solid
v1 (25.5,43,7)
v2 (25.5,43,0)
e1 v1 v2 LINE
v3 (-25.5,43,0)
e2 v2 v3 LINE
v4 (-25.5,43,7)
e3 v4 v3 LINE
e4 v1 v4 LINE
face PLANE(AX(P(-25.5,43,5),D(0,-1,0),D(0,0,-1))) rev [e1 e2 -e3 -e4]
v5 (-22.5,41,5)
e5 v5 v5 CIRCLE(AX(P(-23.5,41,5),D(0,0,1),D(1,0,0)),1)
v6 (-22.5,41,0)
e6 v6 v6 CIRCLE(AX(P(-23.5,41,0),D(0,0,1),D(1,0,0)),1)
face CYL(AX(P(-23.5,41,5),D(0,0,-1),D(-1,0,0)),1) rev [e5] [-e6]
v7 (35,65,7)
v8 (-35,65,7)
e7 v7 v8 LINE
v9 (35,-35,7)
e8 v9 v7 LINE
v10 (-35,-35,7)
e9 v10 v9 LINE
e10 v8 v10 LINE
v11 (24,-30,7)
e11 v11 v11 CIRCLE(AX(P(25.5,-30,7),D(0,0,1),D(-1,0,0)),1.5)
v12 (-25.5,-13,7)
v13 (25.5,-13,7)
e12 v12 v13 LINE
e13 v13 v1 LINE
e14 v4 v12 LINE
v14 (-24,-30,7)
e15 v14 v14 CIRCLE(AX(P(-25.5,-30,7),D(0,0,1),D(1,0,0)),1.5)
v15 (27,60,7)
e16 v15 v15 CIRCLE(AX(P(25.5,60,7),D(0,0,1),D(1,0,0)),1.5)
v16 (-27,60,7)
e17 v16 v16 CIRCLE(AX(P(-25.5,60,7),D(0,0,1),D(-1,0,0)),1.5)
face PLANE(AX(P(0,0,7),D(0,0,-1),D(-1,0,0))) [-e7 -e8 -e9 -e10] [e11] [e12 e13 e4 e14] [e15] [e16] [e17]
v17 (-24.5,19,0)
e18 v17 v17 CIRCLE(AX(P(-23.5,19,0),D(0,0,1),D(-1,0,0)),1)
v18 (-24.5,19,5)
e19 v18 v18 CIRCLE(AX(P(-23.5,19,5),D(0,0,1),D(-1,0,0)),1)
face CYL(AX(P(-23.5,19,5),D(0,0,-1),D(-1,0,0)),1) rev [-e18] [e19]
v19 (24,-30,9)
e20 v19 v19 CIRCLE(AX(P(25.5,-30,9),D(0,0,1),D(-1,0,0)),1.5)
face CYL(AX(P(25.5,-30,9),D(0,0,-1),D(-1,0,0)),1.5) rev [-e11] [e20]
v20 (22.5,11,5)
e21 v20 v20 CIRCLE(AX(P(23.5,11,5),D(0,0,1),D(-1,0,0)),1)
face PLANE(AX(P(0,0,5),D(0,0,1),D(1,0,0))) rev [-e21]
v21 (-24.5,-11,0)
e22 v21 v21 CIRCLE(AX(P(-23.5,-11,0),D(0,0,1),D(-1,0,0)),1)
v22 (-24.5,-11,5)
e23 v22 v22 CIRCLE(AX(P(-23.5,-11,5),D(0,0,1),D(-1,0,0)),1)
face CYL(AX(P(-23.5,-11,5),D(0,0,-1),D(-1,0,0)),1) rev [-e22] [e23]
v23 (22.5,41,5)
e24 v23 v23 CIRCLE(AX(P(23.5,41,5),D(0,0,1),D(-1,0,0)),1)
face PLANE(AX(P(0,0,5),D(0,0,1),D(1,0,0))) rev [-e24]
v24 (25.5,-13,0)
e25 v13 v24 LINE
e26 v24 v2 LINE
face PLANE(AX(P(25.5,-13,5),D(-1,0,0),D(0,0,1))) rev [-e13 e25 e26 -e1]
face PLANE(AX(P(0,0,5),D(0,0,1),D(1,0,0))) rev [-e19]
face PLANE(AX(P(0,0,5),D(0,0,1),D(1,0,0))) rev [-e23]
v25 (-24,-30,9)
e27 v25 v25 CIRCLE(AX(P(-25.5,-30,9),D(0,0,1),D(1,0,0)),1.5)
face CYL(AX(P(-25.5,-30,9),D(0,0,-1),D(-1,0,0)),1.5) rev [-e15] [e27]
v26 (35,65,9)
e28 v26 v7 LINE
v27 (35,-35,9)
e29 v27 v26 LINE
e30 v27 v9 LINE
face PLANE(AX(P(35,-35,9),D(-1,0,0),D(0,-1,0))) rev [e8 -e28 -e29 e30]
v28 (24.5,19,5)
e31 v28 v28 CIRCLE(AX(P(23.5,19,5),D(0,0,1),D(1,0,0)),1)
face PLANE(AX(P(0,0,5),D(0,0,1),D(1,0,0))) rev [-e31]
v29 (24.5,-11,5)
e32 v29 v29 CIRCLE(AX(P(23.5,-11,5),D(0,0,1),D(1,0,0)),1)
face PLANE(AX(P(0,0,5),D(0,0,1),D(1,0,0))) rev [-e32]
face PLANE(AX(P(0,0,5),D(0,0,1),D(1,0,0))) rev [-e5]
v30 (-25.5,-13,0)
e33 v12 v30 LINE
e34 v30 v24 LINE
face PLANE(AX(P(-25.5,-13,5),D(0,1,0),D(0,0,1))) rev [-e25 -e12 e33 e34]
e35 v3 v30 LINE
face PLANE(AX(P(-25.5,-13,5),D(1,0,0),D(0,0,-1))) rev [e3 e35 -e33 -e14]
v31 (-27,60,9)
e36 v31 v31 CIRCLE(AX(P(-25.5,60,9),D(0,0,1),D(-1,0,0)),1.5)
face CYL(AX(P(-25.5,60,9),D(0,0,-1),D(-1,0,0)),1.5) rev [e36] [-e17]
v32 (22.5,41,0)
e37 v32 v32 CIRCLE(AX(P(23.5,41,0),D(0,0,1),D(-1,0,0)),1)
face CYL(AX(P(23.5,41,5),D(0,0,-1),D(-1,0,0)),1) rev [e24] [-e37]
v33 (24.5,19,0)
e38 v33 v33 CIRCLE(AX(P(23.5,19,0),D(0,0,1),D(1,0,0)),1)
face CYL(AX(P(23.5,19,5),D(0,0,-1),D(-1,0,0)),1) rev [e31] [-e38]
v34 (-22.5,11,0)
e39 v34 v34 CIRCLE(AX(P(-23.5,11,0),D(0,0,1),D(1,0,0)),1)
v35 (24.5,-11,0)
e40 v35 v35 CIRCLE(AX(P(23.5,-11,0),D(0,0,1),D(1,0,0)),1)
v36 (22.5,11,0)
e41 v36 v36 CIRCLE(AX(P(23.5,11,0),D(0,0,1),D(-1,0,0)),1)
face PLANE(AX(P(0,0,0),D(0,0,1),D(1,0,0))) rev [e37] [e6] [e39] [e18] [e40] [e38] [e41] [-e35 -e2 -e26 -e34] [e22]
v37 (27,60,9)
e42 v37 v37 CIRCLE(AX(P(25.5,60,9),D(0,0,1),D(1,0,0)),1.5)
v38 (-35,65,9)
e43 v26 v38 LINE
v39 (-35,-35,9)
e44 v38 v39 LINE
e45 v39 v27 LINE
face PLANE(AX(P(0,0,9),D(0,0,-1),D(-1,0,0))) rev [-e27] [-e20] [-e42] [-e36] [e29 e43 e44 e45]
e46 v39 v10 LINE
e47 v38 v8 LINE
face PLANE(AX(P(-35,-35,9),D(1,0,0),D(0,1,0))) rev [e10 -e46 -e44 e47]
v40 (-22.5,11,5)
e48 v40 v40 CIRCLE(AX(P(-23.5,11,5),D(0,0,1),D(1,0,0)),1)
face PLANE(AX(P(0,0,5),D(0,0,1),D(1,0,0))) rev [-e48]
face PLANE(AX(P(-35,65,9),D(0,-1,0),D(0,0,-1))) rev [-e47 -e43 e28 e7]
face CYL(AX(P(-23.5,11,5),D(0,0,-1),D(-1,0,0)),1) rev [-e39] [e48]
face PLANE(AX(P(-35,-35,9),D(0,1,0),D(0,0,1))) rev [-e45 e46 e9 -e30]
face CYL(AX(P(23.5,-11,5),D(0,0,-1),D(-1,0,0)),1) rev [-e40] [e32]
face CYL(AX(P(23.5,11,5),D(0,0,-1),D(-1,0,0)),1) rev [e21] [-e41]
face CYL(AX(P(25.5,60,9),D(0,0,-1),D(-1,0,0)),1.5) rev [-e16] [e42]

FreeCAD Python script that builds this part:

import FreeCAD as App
import Part
import Sketcher

V = App.Vector
Q = App.Units.Quantity


def add_polygon(sketch, points):
    """Adds a closed chain of lines whose ends are joined by coincident constraints."""
    first, n = sketch.GeometryCount, len(points)
    for a, b in zip(points, points[1:] + points[:1]):
        sketch.addGeometry(Part.LineSegment(App.Vector(*a, 0), App.Vector(*b, 0)), False)
    for i in range(n):
        sketch.addConstraint(Sketcher.Constraint("Coincident", first + i, 2, first + (i + 1) % n, 1))

doc = App.newDocument("Part")
body = doc.addObject("PartDesign::Body", "Body")

# Sketch on XY plane
sketch1 = doc.addObject("Sketcher::SketchObject", "Sketch")
body.addObject(sketch1)
sketch1.AttachmentSupport = (doc.XY_Plane, [""])
sketch1.MapMode = "FlatFace"
add_polygon(sketch1, [(-25.5, -13), (25.5, -13), (25.5, 43), (-25.5, 43)])  # lines 0-3
sketch1.addGeometry(Part.Circle(V(-23.5, -11, 0), V(0, 0, 1), 1), False)  # 4
sketch1.addGeometry(Part.Circle(V(-23.5, 11, 0), V(0, 0, 1), 1), False)  # 5
sketch1.addGeometry(Part.Circle(V(23.5, -11, 0), V(0, 0, 1), 1), False)  # 6
sketch1.addGeometry(Part.Circle(V(23.5, 11, 0), V(0, 0, 1), 1), False)  # 7
sketch1.addGeometry(Part.Circle(V(-23.5, 19, 0), V(0, 0, 1), 1), False)  # 8
sketch1.addGeometry(Part.Circle(V(-23.5, 41, 0), V(0, 0, 1), 1), False)  # 9
sketch1.addGeometry(Part.Circle(V(23.5, 19, 0), V(0, 0, 1), 1), False)  # 10
sketch1.addGeometry(Part.Circle(V(23.5, 41, 0), V(0, 0, 1), 1), False)  # 11
sketch1.addConstraint(Sketcher.Constraint("Horizontal", 0))
sketch1.addConstraint(Sketcher.Constraint("Vertical", 1))
sketch1.addConstraint(Sketcher.Constraint("Horizontal", 2))
sketch1.addConstraint(Sketcher.Constraint("Vertical", 3))
sketch1.addConstraint(Sketcher.Constraint("Equal", 4, 5))
sketch1.addConstraint(Sketcher.Constraint("Equal", 5, 6))
sketch1.addConstraint(Sketcher.Constraint("Equal", 6, 7))
sketch1.addConstraint(Sketcher.Constraint("Equal", 7, 8))
sketch1.addConstraint(Sketcher.Constraint("Equal", 8, 9))
sketch1.addConstraint(Sketcher.Constraint("Equal", 9, 10))
sketch1.addConstraint(Sketcher.Constraint("Equal", 10, 11))
sketch1.addConstraint(Sketcher.Constraint("Symmetric", 5, 3, 6, 3, -1, 1))
sketch1.addConstraint(Sketcher.Constraint("Symmetric", 4, 3, 7, 3, -1, 1))
sketch1.addConstraint(Sketcher.Constraint("Symmetric", 4, 3, 6, 3, -2))
sketch1.addConstraint(Sketcher.Constraint("Symmetric", 8, 3, 10, 3, -2))
sketch1.addConstraint(Sketcher.Constraint("Symmetric", 9, 3, 11, 3, -2))
sketch1.addConstraint(Sketcher.Constraint("Vertical", 5, 3, 8, 3))
sketch1.addConstraint(Sketcher.Constraint("Vertical", 8, 3, 9, 3))
sketch1.addConstraint(Sketcher.Constraint("Diameter", 4, Q("2 mm")))
sketch1.addConstraint(Sketcher.Constraint("DistanceX", 0, 1, 0, 2, Q("51 mm")))
sketch1.addConstraint(Sketcher.Constraint("DistanceY", 1, 1, 1, 2, Q("56 mm")))
sketch1.addConstraint(Sketcher.Constraint("DistanceY", 4, 3, -1, 1, Q("11 mm")))
sketch1.addConstraint(Sketcher.Constraint("DistanceY", -1, 1, 8, 3, Q("19 mm")))
sketch1.addConstraint(Sketcher.Constraint("DistanceY", -1, 1, 9, 3, Q("41 mm")))
sketch1.addConstraint(Sketcher.Constraint("DistanceY", 0, 2, -1, 1, Q("13 mm")))
sketch1.addConstraint(Sketcher.Constraint("DistanceX", 4, 3, 6, 3, Q("47 mm")))
sketch1.addConstraint(Sketcher.Constraint("DistanceX", 6, 3, 0, 2, Q("2 mm")))
pad1 = doc.addObject("PartDesign::Pad", "Pad")
body.addObject(pad1)
pad1.Profile = sketch1
pad1.Length = 5

# Sketch on XY plane
sketch2 = doc.addObject("Sketcher::SketchObject", "Sketch001")
body.addObject(sketch2)
sketch2.AttachmentSupport = (doc.XY_Plane, [""])
sketch2.MapMode = "FlatFace"
sketch2.AttachmentOffset = App.Placement(V(0, 0, 5), App.Rotation())
add_polygon(sketch2, [(-25.5, 43), (-25.5, -13), (25.5, -13), (25.5, 43)])  # lines 0-3
sketch2.addConstraint(Sketcher.Constraint("Vertical", 0))
sketch2.addConstraint(Sketcher.Constraint("Horizontal", 1))
sketch2.addConstraint(Sketcher.Constraint("Vertical", 2))
sketch2.addConstraint(Sketcher.Constraint("Horizontal", 3))
sketch2.addConstraint(Sketcher.Constraint("DistanceX", 1, 1, 1, 2, Q("51 mm")))
sketch2.addConstraint(Sketcher.Constraint("DistanceY", 0, 2, 0, 1, Q("56 mm")))
sketch2.addConstraint(Sketcher.Constraint("DistanceY", 0, 2, -1, 1, Q("13 mm")))
sketch2.addConstraint(Sketcher.Constraint("DistanceX", 0, 2, -1, 1, Q("25.5 mm")))
pad2 = doc.addObject("PartDesign::Pad", "Pad001")
body.addObject(pad2)
pad2.Profile = sketch2
pad2.Length = 2

# Sketch on XY plane
sketch3 = doc.addObject("Sketcher::SketchObject", "Sketch002")
body.addObject(sketch3)
sketch3.AttachmentSupport = (doc.XY_Plane, [""])
sketch3.MapMode = "FlatFace"
sketch3.AttachmentOffset = App.Placement(V(0, 0, 7), App.Rotation())
add_polygon(sketch3, [(-35, 65), (-35, -35), (35, -35), (35, 65)])  # lines 0-3
sketch3.addGeometry(Part.Circle(V(-25.5, -30, 0), V(0, 0, 1), 1.5), False)  # 4
sketch3.addGeometry(Part.Circle(V(25.5, -30, 0), V(0, 0, 1), 1.5), False)  # 5
sketch3.addGeometry(Part.Circle(V(-25.5, 60, 0), V(0, 0, 1), 1.5), False)  # 6
sketch3.addGeometry(Part.Circle(V(25.5, 60, 0), V(0, 0, 1), 1.5), False)  # 7
sketch3.addConstraint(Sketcher.Constraint("Vertical", 0))
sketch3.addConstraint(Sketcher.Constraint("Horizontal", 1))
sketch3.addConstraint(Sketcher.Constraint("Vertical", 2))
sketch3.addConstraint(Sketcher.Constraint("Horizontal", 3))
sketch3.addConstraint(Sketcher.Constraint("Equal", 4, 5))
sketch3.addConstraint(Sketcher.Constraint("Equal", 5, 6))
sketch3.addConstraint(Sketcher.Constraint("Equal", 6, 7))
sketch3.addConstraint(Sketcher.Constraint("Symmetric", 4, 3, 5, 3, -2))
sketch3.addConstraint(Sketcher.Constraint("Symmetric", 6, 3, 7, 3, -2))
sketch3.addConstraint(Sketcher.Constraint("Vertical", 4, 3, 6, 3))
sketch3.addConstraint(Sketcher.Constraint("Diameter", 4, Q("3 mm")))
sketch3.addConstraint(Sketcher.Constraint("DistanceX", 1, 1, 1, 2, Q("70 mm")))
sketch3.addConstraint(Sketcher.Constraint("DistanceY", 0, 2, 0, 1, Q("100 mm")))
sketch3.addConstraint(Sketcher.Constraint("DistanceY", 4, 3, -1, 1, Q("30 mm")))
sketch3.addConstraint(Sketcher.Constraint("DistanceY", -1, 1, 6, 3, Q("60 mm")))
sketch3.addConstraint(Sketcher.Constraint("DistanceX", 0, 2, -1, 1, Q("35 mm")))
sketch3.addConstraint(Sketcher.Constraint("DistanceY", 0, 2, -1, 1, Q("35 mm")))
sketch3.addConstraint(Sketcher.Constraint("DistanceX", 4, 3, 5, 3, Q("51 mm")))
pad3 = doc.addObject("PartDesign::Pad", "Pad002")
body.addObject(pad3)
pad3.Profile = sketch3
pad3.Length = 2

doc.recompute()
